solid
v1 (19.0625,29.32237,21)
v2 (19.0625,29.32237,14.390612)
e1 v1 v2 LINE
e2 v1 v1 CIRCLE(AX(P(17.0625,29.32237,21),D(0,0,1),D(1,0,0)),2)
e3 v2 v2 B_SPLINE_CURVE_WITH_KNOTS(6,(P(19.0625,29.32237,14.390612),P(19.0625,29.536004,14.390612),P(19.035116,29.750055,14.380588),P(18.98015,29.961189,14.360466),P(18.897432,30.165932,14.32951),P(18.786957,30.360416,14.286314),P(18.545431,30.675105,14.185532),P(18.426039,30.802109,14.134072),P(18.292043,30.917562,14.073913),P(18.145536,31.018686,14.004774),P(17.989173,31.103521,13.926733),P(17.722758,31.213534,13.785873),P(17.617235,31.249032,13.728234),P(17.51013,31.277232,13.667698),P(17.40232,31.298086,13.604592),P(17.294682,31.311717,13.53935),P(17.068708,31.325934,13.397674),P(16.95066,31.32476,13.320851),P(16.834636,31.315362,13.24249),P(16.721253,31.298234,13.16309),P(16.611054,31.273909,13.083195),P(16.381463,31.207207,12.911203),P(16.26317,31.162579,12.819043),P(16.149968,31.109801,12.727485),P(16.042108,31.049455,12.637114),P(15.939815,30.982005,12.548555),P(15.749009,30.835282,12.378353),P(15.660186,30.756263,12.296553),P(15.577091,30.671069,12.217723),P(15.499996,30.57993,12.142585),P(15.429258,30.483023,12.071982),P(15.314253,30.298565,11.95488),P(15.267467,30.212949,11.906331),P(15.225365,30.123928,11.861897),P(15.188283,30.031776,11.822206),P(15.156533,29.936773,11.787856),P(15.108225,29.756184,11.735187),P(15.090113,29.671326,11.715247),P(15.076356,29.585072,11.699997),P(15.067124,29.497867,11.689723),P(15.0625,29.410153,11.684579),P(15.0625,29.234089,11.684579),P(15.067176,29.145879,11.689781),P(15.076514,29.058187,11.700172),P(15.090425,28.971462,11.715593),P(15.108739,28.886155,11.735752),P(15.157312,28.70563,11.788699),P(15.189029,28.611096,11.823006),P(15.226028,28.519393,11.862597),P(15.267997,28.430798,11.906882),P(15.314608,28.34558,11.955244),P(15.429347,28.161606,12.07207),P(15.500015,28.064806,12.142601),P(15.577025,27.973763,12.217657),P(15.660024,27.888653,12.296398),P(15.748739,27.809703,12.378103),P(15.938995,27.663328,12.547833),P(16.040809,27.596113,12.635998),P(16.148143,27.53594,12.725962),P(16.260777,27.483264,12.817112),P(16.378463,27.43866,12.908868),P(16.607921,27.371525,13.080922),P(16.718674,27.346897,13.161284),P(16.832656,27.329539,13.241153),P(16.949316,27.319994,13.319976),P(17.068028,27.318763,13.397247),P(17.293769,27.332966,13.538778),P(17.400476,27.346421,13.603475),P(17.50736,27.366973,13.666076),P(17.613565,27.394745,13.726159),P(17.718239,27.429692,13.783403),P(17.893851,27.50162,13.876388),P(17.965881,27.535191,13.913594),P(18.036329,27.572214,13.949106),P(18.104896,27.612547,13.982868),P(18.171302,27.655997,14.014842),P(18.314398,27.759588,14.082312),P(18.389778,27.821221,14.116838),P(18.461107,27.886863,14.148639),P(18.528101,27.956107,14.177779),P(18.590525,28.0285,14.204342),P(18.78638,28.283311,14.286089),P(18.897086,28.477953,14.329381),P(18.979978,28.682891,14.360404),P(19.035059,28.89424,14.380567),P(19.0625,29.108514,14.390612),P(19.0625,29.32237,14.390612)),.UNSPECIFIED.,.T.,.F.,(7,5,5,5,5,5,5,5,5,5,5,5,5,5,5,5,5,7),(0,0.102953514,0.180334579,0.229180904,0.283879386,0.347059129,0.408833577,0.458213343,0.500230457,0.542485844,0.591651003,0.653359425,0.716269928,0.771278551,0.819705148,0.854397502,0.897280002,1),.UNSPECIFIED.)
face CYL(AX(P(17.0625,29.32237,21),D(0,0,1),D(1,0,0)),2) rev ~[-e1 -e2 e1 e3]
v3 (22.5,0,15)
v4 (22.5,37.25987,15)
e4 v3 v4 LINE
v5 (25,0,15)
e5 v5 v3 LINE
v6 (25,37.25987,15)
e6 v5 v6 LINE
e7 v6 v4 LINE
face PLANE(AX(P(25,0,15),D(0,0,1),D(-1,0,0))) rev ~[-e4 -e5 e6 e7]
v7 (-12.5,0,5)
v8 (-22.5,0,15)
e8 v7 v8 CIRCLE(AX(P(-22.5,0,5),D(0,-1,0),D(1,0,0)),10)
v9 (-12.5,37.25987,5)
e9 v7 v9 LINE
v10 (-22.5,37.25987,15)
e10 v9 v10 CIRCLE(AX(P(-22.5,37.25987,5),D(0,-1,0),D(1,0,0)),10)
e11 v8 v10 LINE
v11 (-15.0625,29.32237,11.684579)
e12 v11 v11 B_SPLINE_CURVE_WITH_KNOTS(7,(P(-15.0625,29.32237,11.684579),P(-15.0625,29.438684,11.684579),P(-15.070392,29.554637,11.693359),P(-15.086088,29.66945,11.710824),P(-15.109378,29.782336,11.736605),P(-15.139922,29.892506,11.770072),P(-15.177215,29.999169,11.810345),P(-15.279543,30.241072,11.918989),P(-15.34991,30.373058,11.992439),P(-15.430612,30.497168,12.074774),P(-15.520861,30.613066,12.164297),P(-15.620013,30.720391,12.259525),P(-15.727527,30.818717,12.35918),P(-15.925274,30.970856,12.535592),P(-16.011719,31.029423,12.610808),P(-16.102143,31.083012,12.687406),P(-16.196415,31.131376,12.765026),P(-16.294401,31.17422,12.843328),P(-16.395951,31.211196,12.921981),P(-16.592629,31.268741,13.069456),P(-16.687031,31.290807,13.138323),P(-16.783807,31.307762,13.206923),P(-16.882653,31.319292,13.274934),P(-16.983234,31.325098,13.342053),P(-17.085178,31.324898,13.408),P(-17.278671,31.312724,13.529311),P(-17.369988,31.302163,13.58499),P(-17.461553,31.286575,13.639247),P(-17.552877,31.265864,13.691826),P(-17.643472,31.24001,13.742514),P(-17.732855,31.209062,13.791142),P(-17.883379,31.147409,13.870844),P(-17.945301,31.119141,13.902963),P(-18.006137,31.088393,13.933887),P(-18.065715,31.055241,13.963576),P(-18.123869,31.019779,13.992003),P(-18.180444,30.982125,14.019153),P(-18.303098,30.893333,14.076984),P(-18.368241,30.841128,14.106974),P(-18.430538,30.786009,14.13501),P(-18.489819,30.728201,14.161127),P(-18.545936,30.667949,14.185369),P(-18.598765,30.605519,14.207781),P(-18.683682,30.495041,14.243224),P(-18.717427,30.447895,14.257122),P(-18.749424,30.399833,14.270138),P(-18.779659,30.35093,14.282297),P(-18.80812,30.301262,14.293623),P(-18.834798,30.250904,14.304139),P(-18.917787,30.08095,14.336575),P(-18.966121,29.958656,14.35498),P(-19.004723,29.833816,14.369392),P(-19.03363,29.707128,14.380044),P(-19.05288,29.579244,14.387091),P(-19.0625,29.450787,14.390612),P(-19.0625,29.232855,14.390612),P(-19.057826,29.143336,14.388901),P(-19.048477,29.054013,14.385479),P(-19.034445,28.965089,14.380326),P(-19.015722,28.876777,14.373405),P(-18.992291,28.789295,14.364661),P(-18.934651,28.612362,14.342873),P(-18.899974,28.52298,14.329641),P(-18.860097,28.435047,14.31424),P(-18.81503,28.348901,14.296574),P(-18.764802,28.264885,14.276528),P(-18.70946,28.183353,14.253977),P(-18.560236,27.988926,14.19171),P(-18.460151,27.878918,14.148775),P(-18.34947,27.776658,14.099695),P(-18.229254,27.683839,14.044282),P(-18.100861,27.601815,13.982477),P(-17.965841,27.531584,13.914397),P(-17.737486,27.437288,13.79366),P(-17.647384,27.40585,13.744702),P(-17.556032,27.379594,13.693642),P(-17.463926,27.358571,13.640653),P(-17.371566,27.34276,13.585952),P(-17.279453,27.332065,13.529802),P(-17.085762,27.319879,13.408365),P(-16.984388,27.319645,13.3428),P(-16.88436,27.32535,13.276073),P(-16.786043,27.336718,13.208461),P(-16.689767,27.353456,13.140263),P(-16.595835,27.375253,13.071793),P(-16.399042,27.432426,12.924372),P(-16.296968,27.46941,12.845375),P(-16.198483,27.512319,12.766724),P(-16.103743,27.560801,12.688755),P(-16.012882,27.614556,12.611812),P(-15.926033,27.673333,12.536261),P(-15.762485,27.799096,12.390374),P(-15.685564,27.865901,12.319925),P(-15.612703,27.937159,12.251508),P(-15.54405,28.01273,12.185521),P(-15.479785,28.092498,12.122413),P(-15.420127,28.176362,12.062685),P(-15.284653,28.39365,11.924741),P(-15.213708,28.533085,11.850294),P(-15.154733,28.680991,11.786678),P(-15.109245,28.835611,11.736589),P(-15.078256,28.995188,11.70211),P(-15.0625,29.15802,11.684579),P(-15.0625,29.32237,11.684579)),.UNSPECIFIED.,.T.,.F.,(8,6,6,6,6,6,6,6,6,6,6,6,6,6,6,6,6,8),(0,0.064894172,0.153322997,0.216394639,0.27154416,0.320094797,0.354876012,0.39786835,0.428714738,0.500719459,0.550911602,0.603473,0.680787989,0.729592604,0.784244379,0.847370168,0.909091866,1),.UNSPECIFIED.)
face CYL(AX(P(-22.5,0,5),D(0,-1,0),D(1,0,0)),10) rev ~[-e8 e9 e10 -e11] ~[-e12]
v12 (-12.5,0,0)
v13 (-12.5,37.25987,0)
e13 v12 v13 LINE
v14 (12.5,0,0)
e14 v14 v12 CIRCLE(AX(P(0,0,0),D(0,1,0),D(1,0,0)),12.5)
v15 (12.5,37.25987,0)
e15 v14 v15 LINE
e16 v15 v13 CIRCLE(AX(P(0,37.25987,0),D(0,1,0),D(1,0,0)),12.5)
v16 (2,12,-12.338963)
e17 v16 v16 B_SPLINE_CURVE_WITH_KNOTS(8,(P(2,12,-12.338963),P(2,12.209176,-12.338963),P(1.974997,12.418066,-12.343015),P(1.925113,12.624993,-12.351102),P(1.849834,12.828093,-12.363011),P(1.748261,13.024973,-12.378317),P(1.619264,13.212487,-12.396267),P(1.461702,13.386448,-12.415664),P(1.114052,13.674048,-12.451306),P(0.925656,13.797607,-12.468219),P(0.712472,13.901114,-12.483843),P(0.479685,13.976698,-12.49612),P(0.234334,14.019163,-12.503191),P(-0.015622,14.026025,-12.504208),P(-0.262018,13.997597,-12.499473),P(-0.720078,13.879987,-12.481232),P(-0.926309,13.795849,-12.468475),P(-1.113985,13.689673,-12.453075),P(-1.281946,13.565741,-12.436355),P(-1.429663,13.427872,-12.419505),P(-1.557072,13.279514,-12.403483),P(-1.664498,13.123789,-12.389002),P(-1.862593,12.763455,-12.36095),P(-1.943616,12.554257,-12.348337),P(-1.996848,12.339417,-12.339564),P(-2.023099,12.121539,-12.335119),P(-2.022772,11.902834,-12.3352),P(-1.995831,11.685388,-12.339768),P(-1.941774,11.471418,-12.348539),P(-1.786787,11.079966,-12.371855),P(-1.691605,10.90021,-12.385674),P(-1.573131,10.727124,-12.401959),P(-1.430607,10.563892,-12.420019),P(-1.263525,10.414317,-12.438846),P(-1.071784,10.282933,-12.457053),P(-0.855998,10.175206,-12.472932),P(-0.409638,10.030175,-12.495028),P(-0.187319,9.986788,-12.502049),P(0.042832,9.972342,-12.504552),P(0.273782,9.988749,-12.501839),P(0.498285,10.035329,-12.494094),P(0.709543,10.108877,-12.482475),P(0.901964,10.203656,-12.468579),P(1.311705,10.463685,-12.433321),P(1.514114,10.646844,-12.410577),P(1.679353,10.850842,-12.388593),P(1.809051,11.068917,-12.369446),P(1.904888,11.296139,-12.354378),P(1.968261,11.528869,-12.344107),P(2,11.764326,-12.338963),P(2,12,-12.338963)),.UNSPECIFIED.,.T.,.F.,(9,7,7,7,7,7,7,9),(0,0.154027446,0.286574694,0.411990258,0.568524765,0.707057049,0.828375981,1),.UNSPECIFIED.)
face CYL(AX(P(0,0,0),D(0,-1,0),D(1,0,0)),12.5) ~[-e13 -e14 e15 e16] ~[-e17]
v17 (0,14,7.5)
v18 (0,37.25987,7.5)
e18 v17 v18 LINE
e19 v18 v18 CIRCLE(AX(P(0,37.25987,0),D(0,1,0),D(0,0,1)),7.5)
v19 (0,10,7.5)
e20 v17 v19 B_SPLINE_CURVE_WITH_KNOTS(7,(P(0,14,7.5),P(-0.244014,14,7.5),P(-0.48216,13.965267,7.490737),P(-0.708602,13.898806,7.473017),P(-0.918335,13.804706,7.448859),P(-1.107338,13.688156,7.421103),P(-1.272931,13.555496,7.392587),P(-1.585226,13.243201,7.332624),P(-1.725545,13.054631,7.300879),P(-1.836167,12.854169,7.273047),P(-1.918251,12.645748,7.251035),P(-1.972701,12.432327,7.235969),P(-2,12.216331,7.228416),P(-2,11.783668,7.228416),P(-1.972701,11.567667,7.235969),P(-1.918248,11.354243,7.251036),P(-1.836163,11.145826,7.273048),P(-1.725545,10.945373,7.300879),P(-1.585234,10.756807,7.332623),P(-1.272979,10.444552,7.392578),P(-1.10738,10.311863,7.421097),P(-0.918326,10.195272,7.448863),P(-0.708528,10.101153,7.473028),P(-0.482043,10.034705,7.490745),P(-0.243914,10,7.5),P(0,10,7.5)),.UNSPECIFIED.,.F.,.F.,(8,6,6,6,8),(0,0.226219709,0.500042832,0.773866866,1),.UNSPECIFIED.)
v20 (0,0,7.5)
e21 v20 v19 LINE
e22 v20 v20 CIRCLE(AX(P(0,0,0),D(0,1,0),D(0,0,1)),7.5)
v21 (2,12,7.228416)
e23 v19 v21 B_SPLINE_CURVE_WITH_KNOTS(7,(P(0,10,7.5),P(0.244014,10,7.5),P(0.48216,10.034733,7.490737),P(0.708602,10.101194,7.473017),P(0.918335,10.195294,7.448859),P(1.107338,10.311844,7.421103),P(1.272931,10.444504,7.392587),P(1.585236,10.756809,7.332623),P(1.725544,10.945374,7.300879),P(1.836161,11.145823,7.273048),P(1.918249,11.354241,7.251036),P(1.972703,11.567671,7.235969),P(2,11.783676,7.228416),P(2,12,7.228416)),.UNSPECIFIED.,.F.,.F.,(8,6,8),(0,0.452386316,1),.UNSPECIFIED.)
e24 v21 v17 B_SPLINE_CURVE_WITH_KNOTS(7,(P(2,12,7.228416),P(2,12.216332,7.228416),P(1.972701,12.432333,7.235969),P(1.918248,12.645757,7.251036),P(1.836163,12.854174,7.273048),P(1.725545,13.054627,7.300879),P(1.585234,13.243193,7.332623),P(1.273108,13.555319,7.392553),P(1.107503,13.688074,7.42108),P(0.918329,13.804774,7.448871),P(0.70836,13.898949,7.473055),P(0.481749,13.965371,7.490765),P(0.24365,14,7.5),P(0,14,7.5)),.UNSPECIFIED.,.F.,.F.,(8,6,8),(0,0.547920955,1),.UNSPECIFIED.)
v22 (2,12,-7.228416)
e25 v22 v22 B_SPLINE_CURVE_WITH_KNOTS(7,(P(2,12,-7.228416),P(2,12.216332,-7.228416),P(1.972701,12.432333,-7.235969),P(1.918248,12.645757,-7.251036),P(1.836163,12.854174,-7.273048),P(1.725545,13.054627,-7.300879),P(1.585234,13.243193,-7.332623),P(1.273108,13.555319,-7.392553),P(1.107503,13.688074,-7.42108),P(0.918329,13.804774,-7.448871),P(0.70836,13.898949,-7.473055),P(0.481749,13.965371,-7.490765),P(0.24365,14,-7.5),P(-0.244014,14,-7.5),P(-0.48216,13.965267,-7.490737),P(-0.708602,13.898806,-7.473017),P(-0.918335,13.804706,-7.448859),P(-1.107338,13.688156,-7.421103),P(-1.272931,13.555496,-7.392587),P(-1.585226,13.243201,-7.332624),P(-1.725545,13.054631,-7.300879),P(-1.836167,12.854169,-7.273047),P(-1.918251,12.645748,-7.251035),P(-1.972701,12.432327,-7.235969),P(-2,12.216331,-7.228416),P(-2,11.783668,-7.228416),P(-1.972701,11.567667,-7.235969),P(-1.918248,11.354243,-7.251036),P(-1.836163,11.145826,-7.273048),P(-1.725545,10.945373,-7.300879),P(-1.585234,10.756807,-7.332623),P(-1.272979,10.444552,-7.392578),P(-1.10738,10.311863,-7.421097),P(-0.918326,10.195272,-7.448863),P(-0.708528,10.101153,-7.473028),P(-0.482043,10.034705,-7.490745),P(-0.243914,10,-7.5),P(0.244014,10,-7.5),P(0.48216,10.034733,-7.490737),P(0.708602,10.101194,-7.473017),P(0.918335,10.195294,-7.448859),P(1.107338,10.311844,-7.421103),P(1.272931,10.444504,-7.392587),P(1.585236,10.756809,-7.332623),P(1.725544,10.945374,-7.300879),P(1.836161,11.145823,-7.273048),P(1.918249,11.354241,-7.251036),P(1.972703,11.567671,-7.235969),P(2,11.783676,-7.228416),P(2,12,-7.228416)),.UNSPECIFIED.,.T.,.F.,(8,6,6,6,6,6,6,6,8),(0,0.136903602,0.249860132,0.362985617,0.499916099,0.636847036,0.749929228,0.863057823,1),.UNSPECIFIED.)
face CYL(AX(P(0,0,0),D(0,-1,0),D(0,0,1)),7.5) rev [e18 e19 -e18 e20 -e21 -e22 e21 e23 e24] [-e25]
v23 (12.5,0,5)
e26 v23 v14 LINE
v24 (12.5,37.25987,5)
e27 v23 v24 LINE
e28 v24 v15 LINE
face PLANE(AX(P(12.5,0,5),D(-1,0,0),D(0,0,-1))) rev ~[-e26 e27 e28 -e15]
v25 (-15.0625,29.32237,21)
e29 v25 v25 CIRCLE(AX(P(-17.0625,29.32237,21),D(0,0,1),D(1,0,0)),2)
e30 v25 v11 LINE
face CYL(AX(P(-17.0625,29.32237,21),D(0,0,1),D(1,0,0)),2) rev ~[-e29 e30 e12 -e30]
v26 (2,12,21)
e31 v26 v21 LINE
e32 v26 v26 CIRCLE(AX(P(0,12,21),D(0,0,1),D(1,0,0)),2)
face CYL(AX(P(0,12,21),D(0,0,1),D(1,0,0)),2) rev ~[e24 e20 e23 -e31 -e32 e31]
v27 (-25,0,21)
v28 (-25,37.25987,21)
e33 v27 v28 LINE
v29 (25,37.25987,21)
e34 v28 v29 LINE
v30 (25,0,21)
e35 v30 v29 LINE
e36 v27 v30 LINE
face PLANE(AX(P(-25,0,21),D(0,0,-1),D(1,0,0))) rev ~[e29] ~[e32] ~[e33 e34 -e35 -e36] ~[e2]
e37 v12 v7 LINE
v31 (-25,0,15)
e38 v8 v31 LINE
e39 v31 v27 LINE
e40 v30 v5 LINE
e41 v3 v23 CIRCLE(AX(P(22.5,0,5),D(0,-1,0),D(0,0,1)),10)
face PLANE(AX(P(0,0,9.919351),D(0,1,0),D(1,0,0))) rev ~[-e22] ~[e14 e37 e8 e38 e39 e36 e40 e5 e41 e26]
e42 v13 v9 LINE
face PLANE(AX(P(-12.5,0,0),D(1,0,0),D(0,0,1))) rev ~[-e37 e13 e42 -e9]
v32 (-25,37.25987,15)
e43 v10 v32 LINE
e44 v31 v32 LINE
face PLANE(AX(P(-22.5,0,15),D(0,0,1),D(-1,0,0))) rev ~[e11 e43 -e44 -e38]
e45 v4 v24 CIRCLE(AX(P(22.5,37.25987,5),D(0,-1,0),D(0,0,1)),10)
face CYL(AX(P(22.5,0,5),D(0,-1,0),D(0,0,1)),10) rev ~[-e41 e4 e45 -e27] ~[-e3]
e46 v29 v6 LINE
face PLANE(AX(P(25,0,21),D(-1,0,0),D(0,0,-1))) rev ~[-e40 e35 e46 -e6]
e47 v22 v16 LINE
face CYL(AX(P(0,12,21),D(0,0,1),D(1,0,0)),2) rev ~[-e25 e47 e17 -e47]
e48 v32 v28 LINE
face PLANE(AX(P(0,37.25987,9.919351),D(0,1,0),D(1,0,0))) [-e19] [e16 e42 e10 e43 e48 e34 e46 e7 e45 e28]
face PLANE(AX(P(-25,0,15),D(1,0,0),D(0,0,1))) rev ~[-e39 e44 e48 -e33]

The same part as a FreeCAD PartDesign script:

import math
import FreeCAD as App
import Part
import Sketcher
from FreeCAD import Vector

doc = App.newDocument("Part")
params = doc.addObject("Spreadsheet::Sheet", "Params")
for row, (alias, value) in enumerate([
    ("sketch1_diameter", "15 mm"),
    ("sketch1_radius", "10 mm"),
    ("sketch1_radius2", "12.5 mm"),
    ("sketch1_width", "50 mm"),
    ("sketch1_height", "6 mm"),
    ("pad1_length", "37.25987 mm"),
    ("sketch2_diameter", "4 mm"),
    ("sketch3_diameter", "4 mm"),
], start=1):
    params.set(f"A{row}", alias)
    params.set(f"B{row}", "=" + value)
    params.setAlias(f"B{row}", alias)

body = doc.addObject("PartDesign::Body", "Body")

# Sketch on XZ plane
sketch1 = doc.addObject("Sketcher::SketchObject", "Sketch")
body.addObject(sketch1)
sketch1.AttachmentSupport = (doc.XZ_Plane, [""])
sketch1.MapMode = "FlatFace"
sketch1.addGeometry([
    Part.LineSegment(Vector(-25, 21, 0), Vector(25, 21, 0)),  # 0
    Part.LineSegment(Vector(25, 21, 0), Vector(25, 15, 0)),  # 1
    Part.LineSegment(Vector(25, 15, 0), Vector(22.5, 15, 0)),  # 2
    Part.ArcOfCircle(Part.Circle(Vector(22.5, 5, 0), Vector(0, 0, 1), 10), math.radians(90), math.radians(180)),  # 3
    Part.LineSegment(Vector(12.5, 5, 0), Vector(12.5, 0, 0)),  # 4
    Part.ArcOfCircle(Part.Circle(Vector(0, 0, 0), Vector(0, 0, 1), 12.5), math.radians(180), math.radians(360)),  # 5
    Part.LineSegment(Vector(-12.5, 0, 0), Vector(-12.5, 5, 0)),  # 6
    Part.ArcOfCircle(Part.Circle(Vector(-22.5, 5, 0), Vector(0, 0, 1), 10), math.radians(0), math.radians(90)),  # 7
    Part.LineSegment(Vector(-22.5, 15, 0), Vector(-25, 15, 0)),  # 8
    Part.LineSegment(Vector(-25, 15, 0), Vector(-25, 21, 0)),  # 9
    Part.Circle(Vector(0, 0, 0), Vector(0, 0, 1), 7.5),  # 10
], False)
sketch1.addConstraint([
    Sketcher.Constraint("Coincident", 0, 2, 1, 1),
    Sketcher.Constraint("Coincident", 1, 2, 2, 1),
    Sketcher.Constraint("Tangent", 2, 2, 3, 1),
    Sketcher.Constraint("Tangent", 3, 2, 4, 1),
    Sketcher.Constraint("Tangent", 4, 2, 5, 2),
    Sketcher.Constraint("Tangent", 5, 1, 6, 1),
    Sketcher.Constraint("Tangent", 6, 2, 7, 1),
    Sketcher.Constraint("Tangent", 7, 2, 8, 1),
    Sketcher.Constraint("Coincident", 8, 2, 9, 1),
    Sketcher.Constraint("Coincident", 9, 2, 0, 1),
    Sketcher.Constraint("Horizontal", 0),
    Sketcher.Constraint("Vertical", 1),
    Sketcher.Constraint("Horizontal", 2),
    Sketcher.Constraint("Vertical", 4),
    Sketcher.Constraint("Vertical", 6),
    Sketcher.Constraint("Horizontal", 8),
    Sketcher.Constraint("Vertical", 9),
    Sketcher.Constraint("Coincident", 5, 3, -1, 1),
    Sketcher.Constraint("Coincident", 10, 3, -1, 1),
    Sketcher.Constraint("Equal", 3, 7),
    Sketcher.Constraint("Symmetric", 1, 2, 8, 2, -2),
    Sketcher.Constraint("Diameter", 10, 15.0),
    Sketcher.Constraint("Radius", 3, 10.0),
    Sketcher.Constraint("Radius", 5, 12.5),
    Sketcher.Constraint("DistanceX", 0, 1, 0, 2, 50.0),
    Sketcher.Constraint("DistanceY", 1, 2, 1, 1, 6.0),
    Sketcher.Constraint("DistanceY", 4, 2, 4, 1, 5.0),
])
sketch1.setExpression("Constraints[21]", "Params.sketch1_diameter")
sketch1.setExpression("Constraints[22]", "Params.sketch1_radius")
sketch1.setExpression("Constraints[23]", "Params.sketch1_radius2")
sketch1.setExpression("Constraints[24]", "Params.sketch1_width")
sketch1.setExpression("Constraints[25]", "Params.sketch1_height")
pad1 = doc.addObject("PartDesign::Pad", "Pad")
body.addObject(pad1)
pad1.Profile = sketch1
pad1.setExpression("Length", "Params.pad1_length")
pad1.Reversed = True

# Sketch on XY plane
sketch2 = doc.addObject("Sketcher::SketchObject", "Sketch001")
body.addObject(sketch2)
sketch2.AttachmentSupport = (doc.XY_Plane, [""])
sketch2.MapMode = "FlatFace"
sketch2.AttachmentOffset = App.Placement(Vector(0, 0, 21), App.Rotation())
sketch2.addGeometry([
    Part.Circle(Vector(-17.0625, 29.32237, 0), Vector(0, 0, 1), 2),
    Part.Circle(Vector(17.0625, 29.32237, 0), Vector(0, 0, 1), 2),
], False)
sketch2.addConstraint([
    Sketcher.Constraint("Equal", 0, 1),
    Sketcher.Constraint("Symmetric", 0, 3, 1, 3, -2),
    Sketcher.Constraint("Diameter", 0, 4.0),
    Sketcher.Constraint("DistanceX", 0, 3, 1, 3, 34.125),
    Sketcher.Constraint("DistanceY", -1, 1, 0, 3, 29.32237),
])
sketch2.setExpression("Constraints[2]", "Params.sketch2_diameter")
pocket1 = doc.addObject("PartDesign::Pocket", "Pocket")
body.addObject(pocket1)
pocket1.Profile = sketch2
pocket1.Type = "ThroughAll"

# Sketch on XY plane
sketch3 = doc.addObject("Sketcher::SketchObject", "Sketch002")
body.addObject(sketch3)
sketch3.AttachmentSupport = (doc.XY_Plane, [""])
sketch3.MapMode = "FlatFace"
sketch3.AttachmentOffset = App.Placement(Vector(0, 0, 21), App.Rotation())
sketch3.addGeometry(Part.Circle(Vector(0, 12, 0), Vector(0, 0, 1), 2), False)
sketch3.addConstraint([
    Sketcher.Constraint("PointOnObject", 0, 3, -2),
    Sketcher.Constraint("Diameter", 0, 4.0),
    Sketcher.Constraint("DistanceY", -1, 1, 0, 3, 12.0),
])
sketch3.setExpression("Constraints[1]", "Params.sketch3_diameter")
pocket2 = doc.addObject("PartDesign::Pocket", "Pocket001")
body.addObject(pocket2)
pocket2.Profile = sketch3
pocket2.Type = "ThroughAll"

doc.recompute()
